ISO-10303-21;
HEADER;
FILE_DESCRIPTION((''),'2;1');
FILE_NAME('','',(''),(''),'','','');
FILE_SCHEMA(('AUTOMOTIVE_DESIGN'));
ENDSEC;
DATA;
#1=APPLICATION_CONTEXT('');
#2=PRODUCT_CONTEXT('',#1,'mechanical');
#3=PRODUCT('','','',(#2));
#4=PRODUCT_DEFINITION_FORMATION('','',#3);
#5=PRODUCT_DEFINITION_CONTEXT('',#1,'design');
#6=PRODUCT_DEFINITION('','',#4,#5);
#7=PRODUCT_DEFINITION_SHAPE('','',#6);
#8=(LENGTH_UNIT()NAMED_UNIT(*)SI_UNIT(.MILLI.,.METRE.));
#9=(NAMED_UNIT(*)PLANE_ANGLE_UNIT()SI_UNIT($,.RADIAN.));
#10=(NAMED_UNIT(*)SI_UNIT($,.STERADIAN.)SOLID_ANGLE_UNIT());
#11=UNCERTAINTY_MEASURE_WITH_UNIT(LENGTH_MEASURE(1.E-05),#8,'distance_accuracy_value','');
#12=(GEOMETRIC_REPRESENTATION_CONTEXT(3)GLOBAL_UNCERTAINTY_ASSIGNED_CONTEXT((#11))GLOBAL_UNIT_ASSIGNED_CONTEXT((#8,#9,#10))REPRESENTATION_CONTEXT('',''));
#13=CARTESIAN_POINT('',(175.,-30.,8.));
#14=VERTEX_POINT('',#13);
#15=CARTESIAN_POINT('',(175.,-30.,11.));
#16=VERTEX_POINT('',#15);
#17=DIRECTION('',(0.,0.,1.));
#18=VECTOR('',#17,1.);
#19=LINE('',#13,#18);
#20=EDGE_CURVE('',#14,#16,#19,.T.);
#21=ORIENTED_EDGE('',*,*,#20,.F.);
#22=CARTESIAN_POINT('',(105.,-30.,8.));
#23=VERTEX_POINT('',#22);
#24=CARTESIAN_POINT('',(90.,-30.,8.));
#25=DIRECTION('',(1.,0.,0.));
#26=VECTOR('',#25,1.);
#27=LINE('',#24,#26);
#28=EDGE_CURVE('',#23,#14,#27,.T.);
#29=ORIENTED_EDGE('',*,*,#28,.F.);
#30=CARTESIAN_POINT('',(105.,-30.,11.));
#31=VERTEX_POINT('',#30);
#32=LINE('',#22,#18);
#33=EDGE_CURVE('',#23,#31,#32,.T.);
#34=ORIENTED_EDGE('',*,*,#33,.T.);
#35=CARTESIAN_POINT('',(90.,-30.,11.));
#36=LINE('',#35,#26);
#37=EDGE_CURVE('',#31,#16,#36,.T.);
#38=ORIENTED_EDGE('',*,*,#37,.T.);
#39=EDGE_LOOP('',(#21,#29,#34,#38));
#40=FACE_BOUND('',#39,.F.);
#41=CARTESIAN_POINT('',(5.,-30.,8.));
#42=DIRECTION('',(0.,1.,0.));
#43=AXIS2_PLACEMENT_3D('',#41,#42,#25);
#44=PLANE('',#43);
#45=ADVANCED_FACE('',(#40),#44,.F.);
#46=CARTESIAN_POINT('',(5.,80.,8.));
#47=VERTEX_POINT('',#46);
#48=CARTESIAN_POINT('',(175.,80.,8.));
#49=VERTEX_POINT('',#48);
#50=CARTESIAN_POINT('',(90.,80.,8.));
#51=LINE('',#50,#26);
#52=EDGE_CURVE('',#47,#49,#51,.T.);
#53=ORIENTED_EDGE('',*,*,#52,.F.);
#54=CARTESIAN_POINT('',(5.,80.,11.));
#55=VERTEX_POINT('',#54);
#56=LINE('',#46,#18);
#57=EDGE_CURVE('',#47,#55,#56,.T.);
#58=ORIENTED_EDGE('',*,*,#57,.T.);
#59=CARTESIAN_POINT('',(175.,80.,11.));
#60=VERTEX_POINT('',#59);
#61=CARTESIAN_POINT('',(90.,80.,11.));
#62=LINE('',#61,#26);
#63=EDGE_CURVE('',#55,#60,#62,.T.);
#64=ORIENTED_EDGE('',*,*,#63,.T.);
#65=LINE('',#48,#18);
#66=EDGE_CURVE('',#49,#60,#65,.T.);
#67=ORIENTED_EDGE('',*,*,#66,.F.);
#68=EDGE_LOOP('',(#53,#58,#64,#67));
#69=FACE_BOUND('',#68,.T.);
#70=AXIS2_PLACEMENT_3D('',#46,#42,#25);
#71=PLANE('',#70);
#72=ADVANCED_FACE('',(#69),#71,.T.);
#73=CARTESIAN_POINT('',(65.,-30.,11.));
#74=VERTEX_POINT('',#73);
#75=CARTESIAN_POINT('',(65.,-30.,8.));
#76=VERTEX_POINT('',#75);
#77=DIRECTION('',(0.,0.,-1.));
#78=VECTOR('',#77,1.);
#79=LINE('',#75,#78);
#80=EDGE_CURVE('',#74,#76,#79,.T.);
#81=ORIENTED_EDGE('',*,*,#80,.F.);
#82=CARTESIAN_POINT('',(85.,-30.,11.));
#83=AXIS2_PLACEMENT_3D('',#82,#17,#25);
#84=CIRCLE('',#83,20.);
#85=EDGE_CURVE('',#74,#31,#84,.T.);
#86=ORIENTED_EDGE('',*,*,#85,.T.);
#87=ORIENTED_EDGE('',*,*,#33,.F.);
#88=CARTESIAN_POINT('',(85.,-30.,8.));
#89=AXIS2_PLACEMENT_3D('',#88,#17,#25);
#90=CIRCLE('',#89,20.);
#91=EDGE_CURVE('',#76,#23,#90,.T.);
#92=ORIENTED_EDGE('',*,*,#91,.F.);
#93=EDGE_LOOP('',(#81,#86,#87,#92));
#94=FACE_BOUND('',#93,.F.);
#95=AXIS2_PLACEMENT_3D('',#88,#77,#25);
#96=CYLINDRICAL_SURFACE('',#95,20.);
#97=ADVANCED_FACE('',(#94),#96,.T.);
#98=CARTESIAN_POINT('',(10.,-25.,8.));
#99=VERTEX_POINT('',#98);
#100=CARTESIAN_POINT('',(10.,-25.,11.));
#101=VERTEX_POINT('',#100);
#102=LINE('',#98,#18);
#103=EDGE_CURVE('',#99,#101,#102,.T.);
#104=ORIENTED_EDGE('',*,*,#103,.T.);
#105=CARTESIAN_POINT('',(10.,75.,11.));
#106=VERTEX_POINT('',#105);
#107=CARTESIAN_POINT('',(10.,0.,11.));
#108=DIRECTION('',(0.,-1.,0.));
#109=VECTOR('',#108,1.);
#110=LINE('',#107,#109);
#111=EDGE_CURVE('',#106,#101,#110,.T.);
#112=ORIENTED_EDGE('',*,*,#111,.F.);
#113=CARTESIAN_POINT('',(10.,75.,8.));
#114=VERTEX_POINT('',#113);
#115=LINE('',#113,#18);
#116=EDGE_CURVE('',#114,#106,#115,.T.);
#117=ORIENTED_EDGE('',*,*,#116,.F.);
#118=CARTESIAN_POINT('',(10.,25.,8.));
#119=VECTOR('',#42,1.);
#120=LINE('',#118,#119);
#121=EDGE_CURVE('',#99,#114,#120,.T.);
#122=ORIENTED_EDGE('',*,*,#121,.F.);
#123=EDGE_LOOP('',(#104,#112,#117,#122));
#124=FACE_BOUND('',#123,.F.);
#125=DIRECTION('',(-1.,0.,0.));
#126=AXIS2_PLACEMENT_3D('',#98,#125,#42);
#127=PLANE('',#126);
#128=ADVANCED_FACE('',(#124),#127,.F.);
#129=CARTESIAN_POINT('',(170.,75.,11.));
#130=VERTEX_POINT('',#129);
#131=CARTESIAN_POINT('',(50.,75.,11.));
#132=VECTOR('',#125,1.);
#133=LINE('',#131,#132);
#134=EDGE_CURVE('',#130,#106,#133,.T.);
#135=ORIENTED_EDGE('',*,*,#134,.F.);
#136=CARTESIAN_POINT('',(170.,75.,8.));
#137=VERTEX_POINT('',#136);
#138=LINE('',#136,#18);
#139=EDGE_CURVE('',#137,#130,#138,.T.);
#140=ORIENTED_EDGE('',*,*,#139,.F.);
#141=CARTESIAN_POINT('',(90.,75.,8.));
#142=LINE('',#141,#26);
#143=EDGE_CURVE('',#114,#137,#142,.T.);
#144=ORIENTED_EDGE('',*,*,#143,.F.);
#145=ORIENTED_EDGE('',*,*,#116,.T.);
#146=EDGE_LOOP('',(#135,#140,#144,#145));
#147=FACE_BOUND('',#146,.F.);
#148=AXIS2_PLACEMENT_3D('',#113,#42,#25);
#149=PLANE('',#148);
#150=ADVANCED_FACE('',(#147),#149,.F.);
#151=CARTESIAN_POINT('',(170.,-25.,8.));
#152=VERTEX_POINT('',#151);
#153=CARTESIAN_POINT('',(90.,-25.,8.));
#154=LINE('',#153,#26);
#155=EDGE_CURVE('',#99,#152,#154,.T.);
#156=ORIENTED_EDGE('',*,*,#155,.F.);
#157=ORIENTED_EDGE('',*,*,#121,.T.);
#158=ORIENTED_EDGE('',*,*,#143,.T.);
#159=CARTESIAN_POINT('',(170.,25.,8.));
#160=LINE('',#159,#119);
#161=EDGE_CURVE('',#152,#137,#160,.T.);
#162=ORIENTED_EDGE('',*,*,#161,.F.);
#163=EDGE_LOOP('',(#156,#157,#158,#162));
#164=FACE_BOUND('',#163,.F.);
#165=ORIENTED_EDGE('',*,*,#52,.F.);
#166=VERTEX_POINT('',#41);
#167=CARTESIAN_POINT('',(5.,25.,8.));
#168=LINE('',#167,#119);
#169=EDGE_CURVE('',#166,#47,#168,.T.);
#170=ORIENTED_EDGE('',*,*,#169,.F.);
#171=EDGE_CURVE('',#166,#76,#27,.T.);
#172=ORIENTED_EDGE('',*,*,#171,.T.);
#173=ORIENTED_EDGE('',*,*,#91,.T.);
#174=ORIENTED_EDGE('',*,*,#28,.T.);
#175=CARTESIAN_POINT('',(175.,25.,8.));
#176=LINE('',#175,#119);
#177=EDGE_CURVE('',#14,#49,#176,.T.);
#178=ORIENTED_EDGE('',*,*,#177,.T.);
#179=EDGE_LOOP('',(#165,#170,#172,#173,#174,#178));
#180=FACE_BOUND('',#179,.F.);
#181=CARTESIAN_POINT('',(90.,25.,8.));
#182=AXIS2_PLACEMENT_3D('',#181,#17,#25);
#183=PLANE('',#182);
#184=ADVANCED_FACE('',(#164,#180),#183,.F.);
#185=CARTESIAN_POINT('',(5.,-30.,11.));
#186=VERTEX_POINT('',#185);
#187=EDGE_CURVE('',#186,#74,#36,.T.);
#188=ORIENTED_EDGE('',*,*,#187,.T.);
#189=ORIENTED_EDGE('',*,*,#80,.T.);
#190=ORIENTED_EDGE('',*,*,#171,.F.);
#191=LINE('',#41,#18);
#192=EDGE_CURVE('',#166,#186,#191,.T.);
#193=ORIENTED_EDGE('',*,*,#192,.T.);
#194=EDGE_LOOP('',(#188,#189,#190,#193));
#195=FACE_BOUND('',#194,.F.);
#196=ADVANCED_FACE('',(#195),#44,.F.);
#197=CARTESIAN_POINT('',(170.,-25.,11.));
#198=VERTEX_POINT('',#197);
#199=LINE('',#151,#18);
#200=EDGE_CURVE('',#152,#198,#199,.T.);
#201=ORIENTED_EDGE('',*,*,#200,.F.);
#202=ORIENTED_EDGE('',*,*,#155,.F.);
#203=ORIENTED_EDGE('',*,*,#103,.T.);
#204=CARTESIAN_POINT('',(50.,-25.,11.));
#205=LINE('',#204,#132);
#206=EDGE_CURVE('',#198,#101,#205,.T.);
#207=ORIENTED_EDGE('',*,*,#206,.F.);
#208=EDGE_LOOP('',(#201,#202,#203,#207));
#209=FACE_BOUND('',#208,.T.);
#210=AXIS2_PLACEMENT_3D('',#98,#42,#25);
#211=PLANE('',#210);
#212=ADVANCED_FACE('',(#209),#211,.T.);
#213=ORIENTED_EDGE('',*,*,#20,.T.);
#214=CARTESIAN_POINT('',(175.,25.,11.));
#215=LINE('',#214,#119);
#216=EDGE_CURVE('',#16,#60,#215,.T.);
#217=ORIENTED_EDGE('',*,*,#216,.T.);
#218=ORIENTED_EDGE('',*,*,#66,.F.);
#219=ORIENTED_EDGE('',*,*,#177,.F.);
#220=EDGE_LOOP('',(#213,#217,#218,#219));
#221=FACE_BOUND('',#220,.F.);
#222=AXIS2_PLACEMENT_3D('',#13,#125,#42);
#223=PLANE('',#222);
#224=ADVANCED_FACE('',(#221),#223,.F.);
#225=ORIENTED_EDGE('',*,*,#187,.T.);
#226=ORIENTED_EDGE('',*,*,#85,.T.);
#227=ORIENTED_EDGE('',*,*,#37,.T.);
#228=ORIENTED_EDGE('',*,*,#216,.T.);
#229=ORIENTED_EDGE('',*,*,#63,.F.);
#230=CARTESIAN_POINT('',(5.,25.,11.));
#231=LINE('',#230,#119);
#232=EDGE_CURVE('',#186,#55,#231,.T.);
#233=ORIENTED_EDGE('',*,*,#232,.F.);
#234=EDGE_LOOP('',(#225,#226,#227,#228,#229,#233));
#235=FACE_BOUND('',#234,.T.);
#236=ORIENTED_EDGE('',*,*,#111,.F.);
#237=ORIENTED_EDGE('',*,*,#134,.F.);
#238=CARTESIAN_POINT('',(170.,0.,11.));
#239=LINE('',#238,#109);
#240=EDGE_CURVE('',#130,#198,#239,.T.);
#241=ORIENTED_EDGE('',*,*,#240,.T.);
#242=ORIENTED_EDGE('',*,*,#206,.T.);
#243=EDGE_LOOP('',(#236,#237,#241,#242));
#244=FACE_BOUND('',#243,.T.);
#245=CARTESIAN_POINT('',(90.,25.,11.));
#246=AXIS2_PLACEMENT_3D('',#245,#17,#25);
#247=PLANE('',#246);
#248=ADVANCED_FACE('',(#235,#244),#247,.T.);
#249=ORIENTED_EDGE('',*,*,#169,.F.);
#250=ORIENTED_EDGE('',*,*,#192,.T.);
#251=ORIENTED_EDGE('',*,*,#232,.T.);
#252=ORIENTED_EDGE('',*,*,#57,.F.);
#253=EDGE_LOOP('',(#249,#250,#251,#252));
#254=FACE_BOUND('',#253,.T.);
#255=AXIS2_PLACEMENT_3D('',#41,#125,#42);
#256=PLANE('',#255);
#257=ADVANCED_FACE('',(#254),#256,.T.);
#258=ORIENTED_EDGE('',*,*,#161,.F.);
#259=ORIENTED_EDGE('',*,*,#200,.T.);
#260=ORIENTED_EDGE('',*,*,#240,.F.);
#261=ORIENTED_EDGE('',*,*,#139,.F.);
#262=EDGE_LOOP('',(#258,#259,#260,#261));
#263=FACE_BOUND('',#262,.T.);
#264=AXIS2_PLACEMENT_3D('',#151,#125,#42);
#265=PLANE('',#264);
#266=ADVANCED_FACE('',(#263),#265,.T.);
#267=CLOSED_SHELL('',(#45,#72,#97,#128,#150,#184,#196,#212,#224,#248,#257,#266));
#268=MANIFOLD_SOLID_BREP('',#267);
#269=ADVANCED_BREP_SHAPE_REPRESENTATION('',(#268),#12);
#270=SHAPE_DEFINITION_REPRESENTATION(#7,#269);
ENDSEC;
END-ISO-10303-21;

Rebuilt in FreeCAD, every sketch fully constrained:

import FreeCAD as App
import Part
import Sketcher

V = App.Vector


def add_polygon(sketch, points):
    """Adds a closed chain of lines whose ends are joined by coincident constraints."""
    first, n = sketch.GeometryCount, len(points)
    for a, b in zip(points, points[1:] + points[:1]):
        sketch.addGeometry(Part.LineSegment(App.Vector(*a, 0), App.Vector(*b, 0)), False)
    for i in range(n):
        sketch.addConstraint(Sketcher.Constraint("Coincident", first + i, 2, first + (i + 1) % n, 1))

doc = App.newDocument("Part")
body = doc.addObject("PartDesign::Body", "Body")

# Sketch on XY plane
sketch1 = body.newObject("Sketcher::SketchObject", "Sketch")
sketch1.AttachmentSupport = (doc.getObject("XY_Plane"), [""])
sketch1.MapMode = "FlatFace"
sketch1.AttachmentOffset = App.Placement(V(0, 0, 3), App.Rotation())
add_polygon(sketch1, [(5, 105), (5, 5), (165, 5), (165, 105)])  # lines 0-3
sketch1.addConstraint([
    Sketcher.Constraint("Vertical", 0),
    Sketcher.Constraint("Horizontal", 1),
    Sketcher.Constraint("Vertical", 2),
    Sketcher.Constraint("Horizontal", 3),
    Sketcher.Constraint("DistanceX", 1, 1, 1, 2, 160.0),
    Sketcher.Constraint("DistanceY", 0, 2, 0, 1, 100.0),
    Sketcher.Constraint("DistanceX", -1, 1, 0, 2, 5.0),
    Sketcher.Constraint("DistanceY", -1, 1, 0, 2, 5.0),
])
pad1 = body.newObject("PartDesign::Pad", "Pad")
pad1.Profile = sketch1
pad1.Length = 5
body2 = doc.addObject("PartDesign::Body", "Body001")

# Sketch on XY plane
sketch2 = body2.newObject("Sketcher::SketchObject", "Sketch001")
sketch2.AttachmentSupport = (doc.getObject("XY_Plane001"), [""])
sketch2.MapMode = "FlatFace"
sketch2.addGeometry(Part.Circle(V(80, 0, 0), V(0, 0, 1), 20), False)
sketch2.addConstraint([
    Sketcher.Constraint("PointOnObject", 0, 3, -1),
    Sketcher.Constraint("Diameter", 0, 40.0),
    Sketcher.Constraint("DistanceX", -1, 1, 0, 3, 80.0),
])
pad2 = body2.newObject("PartDesign::Pad", "Pad001")
pad2.Profile = sketch2
pad2.Length = 3
body3 = doc.addObject("PartDesign::Body", "Body002")

# Sketch on XY plane
sketch3 = body3.newObject("Sketcher::SketchObject", "Sketch002")
sketch3.AttachmentSupport = (doc.getObject("XY_Plane002"), [""])
sketch3.MapMode = "FlatFace"
add_polygon(sketch3, [(0, 110), (0, 0), (170, 0), (170, 110)])  # lines 0-3
sketch3.addConstraint([
    Sketcher.Constraint("Vertical", 0),
    Sketcher.Constraint("Horizontal", 1),
    Sketcher.Constraint("Vertical", 2),
    Sketcher.Constraint("Horizontal", 3),
    Sketcher.Constraint("Coincident", 0, 2, -1, 1),
    Sketcher.Constraint("DistanceX", 1, 1, 1, 2, 170.0),
    Sketcher.Constraint("DistanceY", 0, 2, 0, 1, 110.0),
])
pad3 = body3.newObject("PartDesign::Pad", "Pad002")
pad3.Profile = sketch3
pad3.Length = 3
doc.recompute()

boolean = body3.newObject("PartDesign::Boolean", "Boolean")
boolean.Type = "Fuse"
boolean.addObjects([body2])
body4 = doc.addObject("PartDesign::Body", "Body003")
doc.recompute()

body3.Placement = App.Placement(V(0, 0, 3), App.Rotation(V(0, 0, 1), 0))
boolean2 = body4.newObject("PartDesign::Boolean", "Boolean001")
boolean2.Type = "Fuse"
boolean2.addObjects([body3])
doc.recompute()

boolean3 = body4.newObject("PartDesign::Boolean", "Boolean002")
boolean3.Type = "Cut"
boolean3.addObjects([body])
body5 = doc.addObject("PartDesign::Body", "Body004")
doc.recompute()

body4.Placement = App.Placement(V(5, -30, 5), App.Rotation(V(0, 0, 1), 0))
boolean4 = body5.newObject("PartDesign::Boolean", "Boolean003")
boolean4.Type = "Fuse"
boolean4.addObjects([body4])

doc.recompute()
